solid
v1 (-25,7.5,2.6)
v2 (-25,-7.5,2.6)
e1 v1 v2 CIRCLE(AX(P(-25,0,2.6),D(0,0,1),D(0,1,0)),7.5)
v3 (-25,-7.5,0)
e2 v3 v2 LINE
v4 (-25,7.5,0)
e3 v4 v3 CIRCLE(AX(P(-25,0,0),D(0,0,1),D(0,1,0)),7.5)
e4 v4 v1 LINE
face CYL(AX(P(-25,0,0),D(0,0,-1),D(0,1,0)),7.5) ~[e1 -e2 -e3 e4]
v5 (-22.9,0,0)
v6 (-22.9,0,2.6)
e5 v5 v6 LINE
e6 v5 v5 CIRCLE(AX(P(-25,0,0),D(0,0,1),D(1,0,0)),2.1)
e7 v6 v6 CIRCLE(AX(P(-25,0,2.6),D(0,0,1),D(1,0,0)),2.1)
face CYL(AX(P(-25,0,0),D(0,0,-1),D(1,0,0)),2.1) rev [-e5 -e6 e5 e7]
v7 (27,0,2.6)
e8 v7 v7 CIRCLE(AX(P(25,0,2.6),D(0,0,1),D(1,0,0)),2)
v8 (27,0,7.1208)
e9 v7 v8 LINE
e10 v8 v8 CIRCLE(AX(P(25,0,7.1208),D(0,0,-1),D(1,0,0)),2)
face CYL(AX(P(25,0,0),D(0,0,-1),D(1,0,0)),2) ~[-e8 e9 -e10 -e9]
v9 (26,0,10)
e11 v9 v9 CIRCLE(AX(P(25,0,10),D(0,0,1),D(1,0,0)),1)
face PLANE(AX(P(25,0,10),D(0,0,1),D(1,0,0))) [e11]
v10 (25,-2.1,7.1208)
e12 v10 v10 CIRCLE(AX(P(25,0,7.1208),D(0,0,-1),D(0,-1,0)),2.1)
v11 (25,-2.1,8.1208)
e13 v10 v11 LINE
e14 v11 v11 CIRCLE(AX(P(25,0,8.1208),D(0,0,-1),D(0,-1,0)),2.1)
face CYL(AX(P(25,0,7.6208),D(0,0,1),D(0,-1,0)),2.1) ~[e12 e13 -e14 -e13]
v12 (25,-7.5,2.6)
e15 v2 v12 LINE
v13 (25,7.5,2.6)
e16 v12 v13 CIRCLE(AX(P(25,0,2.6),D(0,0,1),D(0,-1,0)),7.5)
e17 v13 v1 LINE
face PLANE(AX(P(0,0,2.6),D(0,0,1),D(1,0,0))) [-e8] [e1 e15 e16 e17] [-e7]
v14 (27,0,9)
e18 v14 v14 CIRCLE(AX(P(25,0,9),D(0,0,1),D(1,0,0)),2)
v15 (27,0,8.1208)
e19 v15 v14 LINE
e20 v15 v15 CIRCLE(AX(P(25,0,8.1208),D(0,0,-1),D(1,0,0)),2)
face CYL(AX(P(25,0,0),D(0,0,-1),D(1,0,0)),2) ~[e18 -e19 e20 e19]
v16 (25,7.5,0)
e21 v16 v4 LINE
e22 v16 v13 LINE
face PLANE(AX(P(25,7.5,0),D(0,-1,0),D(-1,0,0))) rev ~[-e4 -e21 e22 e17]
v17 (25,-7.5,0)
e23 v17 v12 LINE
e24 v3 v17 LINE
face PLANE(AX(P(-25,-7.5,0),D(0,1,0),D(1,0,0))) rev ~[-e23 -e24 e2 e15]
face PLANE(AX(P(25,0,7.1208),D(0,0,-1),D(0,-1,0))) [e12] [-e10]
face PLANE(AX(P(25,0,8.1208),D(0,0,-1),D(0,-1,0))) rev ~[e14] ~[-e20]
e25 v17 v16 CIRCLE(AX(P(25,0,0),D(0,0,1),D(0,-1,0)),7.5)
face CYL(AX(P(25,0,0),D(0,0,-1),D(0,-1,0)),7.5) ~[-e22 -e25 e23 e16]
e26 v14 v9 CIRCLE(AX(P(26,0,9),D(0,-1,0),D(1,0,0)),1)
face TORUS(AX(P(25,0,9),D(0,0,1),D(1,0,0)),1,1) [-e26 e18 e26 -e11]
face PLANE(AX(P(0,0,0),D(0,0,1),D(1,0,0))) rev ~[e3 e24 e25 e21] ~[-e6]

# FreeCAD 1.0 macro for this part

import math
import FreeCAD as App
import Part
import Sketcher
Q = App.Units.Quantity


def edges_at(feature, points):
    """Names of the edges that pass closest to the given points."""
    edges = feature.Shape.Edges
    near = lambda p: min(range(len(edges)), key=lambda i: edges[i].distToShape(Part.Vertex(*p))[0])
    return sorted({f"Edge{near(p) + 1}" for p in points})


def add_polygon(sketch, points):
    """Adds a closed chain of lines whose ends are joined by coincident constraints."""
    first, n = sketch.GeometryCount, len(points)
    for a, b in zip(points, points[1:] + points[:1]):
        sketch.addGeometry(Part.LineSegment(App.Vector(*a, 0), App.Vector(*b, 0)), False)
    for i in range(n):
        sketch.addConstraint(Sketcher.Constraint("Coincident", first + i, 2, first + (i + 1) % n, 1))

doc = App.newDocument("Part")
params = doc.addObject("Spreadsheet::Sheet", "Params")
for row, (alias, value) in enumerate([
    ("sketch1_diameter", "4 mm"),
    ("pad1_length", "10 mm"),
    ("sketch2_diameter", "4 mm"),
    ("sketch2_diameter2", "4.2 mm"),
    ("sketch2_radius", "7.5 mm"),
    ("sketch2_width", "50 mm"),
    ("pad2_length", "2.6 mm"),
    ("fillet_radius", "1 mm"),
    ("sketch3_height", "1 mm"),
    ("sketch3_width", "2.1 mm"),
    ("revolution_angle", "360 deg"),
], start=1):
    params.set(f"A{row}", alias)
    params.set(f"B{row}", "=" + value)
    params.setAlias(f"B{row}", alias)

body = doc.addObject("PartDesign::Body", "Body")

# Sketch on XY plane
sketch1 = body.newObject("Sketcher::SketchObject", "Sketch")
sketch1.AttachmentSupport = (doc.getObject("XY_Plane"), [""])
sketch1.MapMode = "FlatFace"
sketch1.addGeometry(Part.Circle(App.Vector(25, 0, 0), App.Vector(0, 0, 1), 2), False)
sketch1.addConstraint([
    Sketcher.Constraint("PointOnObject", 0, 3, -1),
    Sketcher.Constraint("Diameter", 0, Q("4 mm")),
    Sketcher.Constraint("DistanceX", -1, 1, 0, 3, Q("25 mm")),
])
sketch1.setExpression("Constraints[1]", "Params.sketch1_diameter")
pad1 = body.newObject("PartDesign::Pad", "Pad")
pad1.Profile = sketch1
pad1.setExpression("Length", "Params.pad1_length")

# Sketch on XY plane
sketch2 = body.newObject("Sketcher::SketchObject", "Sketch001")
sketch2.AttachmentSupport = (doc.getObject("XY_Plane"), [""])
sketch2.MapMode = "FlatFace"
sketch2.addGeometry([
    Part.LineSegment(App.Vector(25, 7.5, 0), App.Vector(-25, 7.5, 0)),  # 0
    Part.ArcOfCircle(Part.Circle(App.Vector(-25, 0, 0), App.Vector(0, 0, 1), 7.5), math.radians(90), math.radians(270)),  # 1
    Part.LineSegment(App.Vector(-25, -7.5, 0), App.Vector(25, -7.5, 0)),  # 2
    Part.ArcOfCircle(Part.Circle(App.Vector(25, 0, 0), App.Vector(0, 0, 1), 7.5), math.radians(-90), math.radians(90)),  # 3
    Part.Circle(App.Vector(-25, 0, 0), App.Vector(0, 0, 1), 2.1),  # 4
    Part.Circle(App.Vector(25, 0, 0), App.Vector(0, 0, 1), 2),  # 5
], False)
sketch2.addConstraint([
    Sketcher.Constraint("Tangent", 0, 2, 1, 1),
    Sketcher.Constraint("Tangent", 1, 2, 2, 1),
    Sketcher.Constraint("Tangent", 2, 2, 3, 1),
    Sketcher.Constraint("Tangent", 3, 2, 0, 1),
    Sketcher.Constraint("Horizontal", 0),
    Sketcher.Constraint("Horizontal", 2),
    Sketcher.Constraint("Coincident", 4, 3, 1, 3),
    Sketcher.Constraint("Coincident", 5, 3, 3, 3),
    Sketcher.Constraint("Symmetric", 1, 3, 3, 3, -1, 1),
    Sketcher.Constraint("Diameter", 5, Q("4 mm")),
    Sketcher.Constraint("Diameter", 4, Q("4.2 mm")),
    Sketcher.Constraint("Radius", 1, Q("7.5 mm")),
    Sketcher.Constraint("DistanceX", 0, 2, 0, 1, Q("50 mm")),
])
sketch2.setExpression("Constraints[9]", "Params.sketch2_diameter")
sketch2.setExpression("Constraints[10]", "Params.sketch2_diameter2")
sketch2.setExpression("Constraints[11]", "Params.sketch2_radius")
sketch2.setExpression("Constraints[12]", "Params.sketch2_width")
pad2 = body.newObject("PartDesign::Pad", "Pad001")
pad2.Profile = sketch2
pad2.setExpression("Length", "Params.pad2_length")
doc.recompute()

fillet = body.newObject("PartDesign::Fillet", "Fillet")
fillet.Base = (pad2, edges_at(pad2, [(23, 0, 10)]))
fillet.setExpression("Radius", "Params.fillet_radius")

# Sketch on YZ plane
sketch3 = body.newObject("Sketcher::SketchObject", "Sketch002")
sketch3.AttachmentSupport = (doc.getObject("YZ_Plane"), [""])
sketch3.MapMode = "FlatFace"
sketch3.AttachmentOffset = App.Placement(App.Vector(0, 0, 25), App.Rotation())
add_polygon(sketch3, [(-2.1, 8.1208), (-2.1, 7.1208), (0, 7.1208), (0, 8.1208)])  # lines 0-3
sketch3.addConstraint([
    Sketcher.Constraint("Vertical", 0),
    Sketcher.Constraint("Horizontal", 1),
    Sketcher.Constraint("Vertical", 2),
    Sketcher.Constraint("Horizontal", 3),
    Sketcher.Constraint("PointOnObject", 1, 2, -2),
    Sketcher.Constraint("DistanceY", 0, 2, 0, 1, Q("1 mm")),
    Sketcher.Constraint("DistanceX", 1, 1, 1, 2, Q("2.1 mm")),
    Sketcher.Constraint("DistanceY", -1, 1, 0, 2, Q("7.1208 mm")),
])
sketch3.setExpression("Constraints[9]", "Params.sketch3_height")
sketch3.setExpression("Constraints[10]", "Params.sketch3_width")
revolution = body.newObject("PartDesign::Revolution", "Revolution")
revolution.Profile = sketch3
revolution.ReferenceAxis = (sketch3, ["V_Axis"])
revolution.setExpression("Angle", "Params.revolution_angle")

doc.recompute()
